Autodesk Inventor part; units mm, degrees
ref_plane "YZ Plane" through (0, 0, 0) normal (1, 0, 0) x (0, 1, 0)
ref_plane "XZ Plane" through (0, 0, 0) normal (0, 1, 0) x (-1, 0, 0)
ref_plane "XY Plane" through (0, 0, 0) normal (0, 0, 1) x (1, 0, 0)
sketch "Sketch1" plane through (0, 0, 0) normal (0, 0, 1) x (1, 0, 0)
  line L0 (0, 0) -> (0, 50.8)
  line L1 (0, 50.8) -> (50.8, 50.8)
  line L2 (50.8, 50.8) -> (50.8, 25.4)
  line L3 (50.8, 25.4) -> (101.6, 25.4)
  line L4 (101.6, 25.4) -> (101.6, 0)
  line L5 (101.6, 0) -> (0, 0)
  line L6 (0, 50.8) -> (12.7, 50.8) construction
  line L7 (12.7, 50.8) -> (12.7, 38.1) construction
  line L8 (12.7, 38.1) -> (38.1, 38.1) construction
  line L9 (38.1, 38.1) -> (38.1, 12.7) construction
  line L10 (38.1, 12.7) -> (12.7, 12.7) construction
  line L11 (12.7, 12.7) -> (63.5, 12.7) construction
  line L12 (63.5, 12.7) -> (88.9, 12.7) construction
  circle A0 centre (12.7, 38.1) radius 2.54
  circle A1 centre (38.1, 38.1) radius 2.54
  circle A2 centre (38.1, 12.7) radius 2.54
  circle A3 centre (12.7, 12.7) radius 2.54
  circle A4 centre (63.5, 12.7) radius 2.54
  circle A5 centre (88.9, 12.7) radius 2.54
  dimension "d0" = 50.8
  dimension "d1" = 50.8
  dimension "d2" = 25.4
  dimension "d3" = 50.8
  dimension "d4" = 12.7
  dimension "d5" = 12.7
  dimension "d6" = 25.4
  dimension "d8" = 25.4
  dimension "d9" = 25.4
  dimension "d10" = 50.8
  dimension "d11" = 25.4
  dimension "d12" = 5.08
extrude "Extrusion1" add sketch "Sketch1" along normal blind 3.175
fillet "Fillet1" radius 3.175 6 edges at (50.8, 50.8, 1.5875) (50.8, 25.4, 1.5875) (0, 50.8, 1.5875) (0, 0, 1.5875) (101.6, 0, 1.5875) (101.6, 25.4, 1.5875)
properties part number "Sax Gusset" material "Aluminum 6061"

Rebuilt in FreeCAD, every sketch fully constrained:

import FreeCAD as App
import Part
import Sketcher
from FreeCAD import Vector
Q = App.Units.Quantity


def edges_at(feature, points):
    """Names of the edges that pass closest to the given points."""
    edges = feature.Shape.Edges
    near = lambda p: min(range(len(edges)), key=lambda i: edges[i].distToShape(Part.Vertex(*p))[0])
    return sorted({f"Edge{near(p) + 1}" for p in points})

doc = App.newDocument("Part")
params = doc.addObject("Spreadsheet::Sheet", "Params")
for row, (alias, value) in enumerate([
    ("sketch1_diameter", "0.2 in"),
    ("sketch1_width", "2 in"),
    ("pad1_length", "0.125 in"),
    ("fillet_radius", "0.125 in"),
], start=1):
    params.set(f"A{row}", alias)
    params.set(f"B{row}", "=" + value)
    params.setAlias(f"B{row}", alias)

body = doc.addObject("PartDesign::Body", "Body")

sketch1 = body.newObject("Sketcher::SketchObject", "Sketch")
sketch1.AttachmentSupport = (doc.getObject("XY_Plane"), [""])
sketch1.MapMode = "FlatFace"
sketch1.addGeometry([
    Part.LineSegment(Vector(0, 50.8, 0), Vector(0, 0, 0)),
    Part.LineSegment(Vector(0, 0, 0), Vector(101.6, 0, 0)),
    Part.LineSegment(Vector(101.6, 0, 0), Vector(101.6, 25.4, 0)),
    Part.LineSegment(Vector(101.6, 25.4, 0), Vector(50.8, 25.4, 0)),
    Part.LineSegment(Vector(50.8, 25.4, 0), Vector(50.8, 50.8, 0)),
    Part.LineSegment(Vector(50.8, 50.8, 0), Vector(0, 50.8, 0)),
    Part.Circle(Vector(12.7, 12.7, 0), Vector(0, 0, 1), 2.5),
    Part.Circle(Vector(38.1, 12.7, 0), Vector(0, 0, 1), 2.5),
    Part.Circle(Vector(63.5, 12.7, 0), Vector(0, 0, 1), 2.5),
    Part.Circle(Vector(88.9, 12.7, 0), Vector(0, 0, 1), 2.5),
    Part.Circle(Vector(12.7, 38.1, 0), Vector(0, 0, 1), 2.5),
    Part.Circle(Vector(38.1, 38.1, 0), Vector(0, 0, 1), 2.5),
], False)
sketch1.addConstraint([
    Sketcher.Constraint("Coincident", 0, 2, 1, 1),
    Sketcher.Constraint("Coincident", 1, 2, 2, 1),
    Sketcher.Constraint("Coincident", 2, 2, 3, 1),
    Sketcher.Constraint("Coincident", 3, 2, 4, 1),
    Sketcher.Constraint("Coincident", 4, 2, 5, 1),
    Sketcher.Constraint("Coincident", 5, 2, 0, 1),
    Sketcher.Constraint("Vertical", 0),
    Sketcher.Constraint("Horizontal", 1),
    Sketcher.Constraint("Vertical", 2),
    Sketcher.Constraint("Horizontal", 3),
    Sketcher.Constraint("Vertical", 4),
    Sketcher.Constraint("Horizontal", 5),
    Sketcher.Constraint("Coincident", 0, 2, -1, 1),
    Sketcher.Constraint("Equal", 6, 7),
    Sketcher.Constraint("Equal", 7, 8),
    Sketcher.Constraint("Equal", 8, 9),
    Sketcher.Constraint("Equal", 9, 10),
    Sketcher.Constraint("Equal", 10, 11),
    Sketcher.Constraint("Horizontal", 6, 3, 7, 3),
    Sketcher.Constraint("Horizontal", 7, 3, 8, 3),
    Sketcher.Constraint("Horizontal", 8, 3, 9, 3),
    Sketcher.Constraint("Horizontal", 10, 3, 11, 3),
    Sketcher.Constraint("Vertical", 6, 3, 10, 3),
    Sketcher.Constraint("Vertical", 7, 3, 11, 3),
    Sketcher.Constraint("Equal", 3, 5),
    Sketcher.Constraint("Equal", 5, 0),
    Sketcher.Constraint("Equal", 2, 4),
    Sketcher.Constraint("Diameter", 6, Q("0.2 in")),
    Sketcher.Constraint("DistanceX", 3, 2, 3, 1, Q("2 in")),
    Sketcher.Constraint("DistanceX", 6, 3, 7, 3, Q("1 in")),
    Sketcher.Constraint("DistanceX", 7, 3, 8, 3, Q("1 in")),
    Sketcher.Constraint("DistanceX", 8, 3, 9, 3, Q("1 in")),
    Sketcher.Constraint("DistanceY", 6, 3, 10, 3, Q("1 in")),
    Sketcher.Constraint("DistanceX", -1, 1, 6, 3, Q("0.5 in")),
    Sketcher.Constraint("DistanceY", -1, 1, 6, 3, Q("0.5 in")),
])
sketch1.setExpression("Constraints[27]", "Params.sketch1_diameter")
sketch1.setExpression("Constraints[28]", "Params.sketch1_width")
pad1 = body.newObject("PartDesign::Pad", "Pad")
pad1.Profile = sketch1
pad1.setExpression("Length", "Params.pad1_length")
doc.recompute()

fillet = body.newObject("PartDesign::Fillet", "Fillet")
fillet.Base = (pad1, edges_at(pad1, [
    (50.8, 50.8, 1.587),
    (50.8, 25.4, 1.587),
    (0, 50.8, 1.587),
    (0, 0, 1.587),
    (101.6, 0, 1.587),
    (101.6, 25.4, 1.587),
]))
fillet.setExpression("Radius", "Params.fillet_radius")

doc.recompute()
